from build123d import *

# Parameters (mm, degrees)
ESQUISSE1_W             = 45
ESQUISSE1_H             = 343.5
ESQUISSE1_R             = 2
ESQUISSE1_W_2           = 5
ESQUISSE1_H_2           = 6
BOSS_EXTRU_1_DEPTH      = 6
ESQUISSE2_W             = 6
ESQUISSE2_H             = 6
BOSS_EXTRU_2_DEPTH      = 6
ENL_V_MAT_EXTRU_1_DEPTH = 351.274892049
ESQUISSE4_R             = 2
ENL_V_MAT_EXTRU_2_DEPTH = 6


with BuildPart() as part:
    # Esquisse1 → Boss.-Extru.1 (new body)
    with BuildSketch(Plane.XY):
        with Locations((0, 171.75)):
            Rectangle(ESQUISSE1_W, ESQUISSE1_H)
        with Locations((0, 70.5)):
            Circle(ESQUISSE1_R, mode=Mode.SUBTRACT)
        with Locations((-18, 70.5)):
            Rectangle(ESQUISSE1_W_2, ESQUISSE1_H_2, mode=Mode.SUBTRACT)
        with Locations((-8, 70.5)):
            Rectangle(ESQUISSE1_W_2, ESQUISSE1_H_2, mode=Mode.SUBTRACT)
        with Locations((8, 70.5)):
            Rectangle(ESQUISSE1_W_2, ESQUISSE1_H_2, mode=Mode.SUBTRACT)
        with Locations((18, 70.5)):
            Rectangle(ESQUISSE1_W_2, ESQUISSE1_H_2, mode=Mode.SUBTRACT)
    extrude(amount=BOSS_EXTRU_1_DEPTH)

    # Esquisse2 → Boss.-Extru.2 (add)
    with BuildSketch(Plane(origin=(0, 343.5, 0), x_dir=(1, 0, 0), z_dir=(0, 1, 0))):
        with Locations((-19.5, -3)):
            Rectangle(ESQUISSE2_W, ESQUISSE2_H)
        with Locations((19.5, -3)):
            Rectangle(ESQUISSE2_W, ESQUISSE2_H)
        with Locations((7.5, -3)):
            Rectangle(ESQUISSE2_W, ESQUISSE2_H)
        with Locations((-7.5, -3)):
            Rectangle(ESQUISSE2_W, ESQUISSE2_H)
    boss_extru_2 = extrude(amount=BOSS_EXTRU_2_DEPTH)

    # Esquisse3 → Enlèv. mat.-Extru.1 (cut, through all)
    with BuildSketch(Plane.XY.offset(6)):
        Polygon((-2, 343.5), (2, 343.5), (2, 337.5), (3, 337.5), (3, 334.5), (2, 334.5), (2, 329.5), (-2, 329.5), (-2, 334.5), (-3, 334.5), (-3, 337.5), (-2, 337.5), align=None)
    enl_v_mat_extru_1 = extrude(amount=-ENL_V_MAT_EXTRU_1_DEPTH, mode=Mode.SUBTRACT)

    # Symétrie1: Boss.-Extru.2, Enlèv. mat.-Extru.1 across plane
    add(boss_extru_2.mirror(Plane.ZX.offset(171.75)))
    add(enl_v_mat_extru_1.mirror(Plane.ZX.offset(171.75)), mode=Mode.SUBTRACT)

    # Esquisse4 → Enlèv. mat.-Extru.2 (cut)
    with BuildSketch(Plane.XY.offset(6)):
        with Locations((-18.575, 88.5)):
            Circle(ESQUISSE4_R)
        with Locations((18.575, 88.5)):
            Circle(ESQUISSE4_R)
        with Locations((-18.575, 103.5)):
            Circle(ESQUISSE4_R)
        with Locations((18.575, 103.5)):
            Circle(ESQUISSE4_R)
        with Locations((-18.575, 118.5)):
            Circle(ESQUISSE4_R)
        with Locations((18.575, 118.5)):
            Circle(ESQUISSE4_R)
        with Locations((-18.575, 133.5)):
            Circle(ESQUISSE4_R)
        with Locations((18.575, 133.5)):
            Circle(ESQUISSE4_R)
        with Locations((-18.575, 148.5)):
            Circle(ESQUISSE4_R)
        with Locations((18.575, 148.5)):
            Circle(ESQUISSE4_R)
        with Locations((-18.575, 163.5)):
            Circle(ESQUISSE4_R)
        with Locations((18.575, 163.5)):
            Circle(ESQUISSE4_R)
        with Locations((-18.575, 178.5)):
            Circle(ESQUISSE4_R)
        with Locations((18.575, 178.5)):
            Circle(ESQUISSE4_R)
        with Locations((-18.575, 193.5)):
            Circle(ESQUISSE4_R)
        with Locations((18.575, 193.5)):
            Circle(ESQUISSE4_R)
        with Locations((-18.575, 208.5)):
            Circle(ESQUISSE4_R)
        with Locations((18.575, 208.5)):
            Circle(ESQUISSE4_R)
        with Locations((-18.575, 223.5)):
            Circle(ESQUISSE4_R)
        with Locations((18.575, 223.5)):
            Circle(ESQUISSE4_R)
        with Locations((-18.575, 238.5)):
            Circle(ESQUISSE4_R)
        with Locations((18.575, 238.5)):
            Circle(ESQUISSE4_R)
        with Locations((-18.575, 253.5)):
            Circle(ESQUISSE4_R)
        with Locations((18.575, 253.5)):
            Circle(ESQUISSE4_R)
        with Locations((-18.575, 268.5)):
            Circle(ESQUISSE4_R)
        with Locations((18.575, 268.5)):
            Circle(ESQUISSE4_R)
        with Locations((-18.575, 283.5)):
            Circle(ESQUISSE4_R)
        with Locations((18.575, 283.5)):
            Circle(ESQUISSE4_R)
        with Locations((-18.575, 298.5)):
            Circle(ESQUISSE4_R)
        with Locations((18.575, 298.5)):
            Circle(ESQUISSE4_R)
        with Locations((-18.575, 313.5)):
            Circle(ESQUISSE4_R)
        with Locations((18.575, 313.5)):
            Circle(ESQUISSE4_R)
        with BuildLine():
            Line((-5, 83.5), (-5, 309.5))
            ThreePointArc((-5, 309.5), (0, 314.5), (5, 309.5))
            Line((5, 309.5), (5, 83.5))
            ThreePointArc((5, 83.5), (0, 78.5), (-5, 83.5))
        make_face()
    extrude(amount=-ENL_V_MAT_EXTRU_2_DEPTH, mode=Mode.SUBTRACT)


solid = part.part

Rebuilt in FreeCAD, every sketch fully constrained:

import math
import FreeCAD as App
import Part
import Sketcher
Q = App.Units.Quantity


def add_polygon(sketch, points):
    """Adds a closed chain of lines whose ends are joined by coincident constraints."""
    first, n = sketch.GeometryCount, len(points)
    for a, b in zip(points, points[1:] + points[:1]):
        sketch.addGeometry(Part.LineSegment(App.Vector(*a, 0), App.Vector(*b, 0)), False)
    for i in range(n):
        sketch.addConstraint(Sketcher.Constraint("Coincident", first + i, 2, first + (i + 1) % n, 1))

doc = App.newDocument("Part")
params = doc.addObject("Spreadsheet::Sheet", "Params")
for row, (alias, value) in enumerate([
    ("sketch1_diameter", "4 mm"),
    ("sketch1_width", "45 mm"),
    ("sketch1_width2", "5 mm"),
    ("sketch1_height", "6 mm"),
    ("sketch1_height2", "343.5 mm"),
    ("pad1_length", "6 mm"),
    ("sketch2_width", "6 mm"),
    ("pad2_length", "6 mm"),
    ("sketch3_width", "4 mm"),
    ("sketch3_width2", "1 mm"),
    ("sketch3_height", "6 mm"),
    ("sketch3_height2", "3 mm"),
    ("sketch3_height3", "5 mm"),
    ("sketch4_diameter", "4 mm"),
    ("sketch4_radius", "5 mm"),
    ("sketch4_height", "226 mm"),
    ("pocket2_length", "6 mm"),
], start=1):
    params.set(f"A{row}", alias)
    params.set(f"B{row}", "=" + value)
    params.setAlias(f"B{row}", alias)

body = doc.addObject("PartDesign::Body", "Body")

# Sketch on XY plane
sketch1 = body.newObject("Sketcher::SketchObject", "Sketch")
sketch1.AttachmentSupport = (doc.getObject("XY_Plane"), [""])
sketch1.MapMode = "FlatFace"
add_polygon(sketch1, [(-22.5, 343.5), (-22.5, 0), (22.5, 0), (22.5, 343.5)])  # lines 0-3
add_polygon(sketch1, [(-15.5, 67.5), (-20.5, 67.5), (-20.5, 73.5), (-15.5, 73.5)])  # lines 4-7
add_polygon(sketch1, [(-5.5, 67.5), (-10.5, 67.5), (-10.5, 73.5), (-5.5, 73.5)])  # lines 8-11
sketch1.addGeometry(Part.Circle(App.Vector(0, 70.5, 0), App.Vector(0, 0, 1), 2), False)  # 12
add_polygon(sketch1, [(10.5, 67.5), (5.5, 67.5), (5.5, 73.5), (10.5, 73.5)])  # lines 13-16
add_polygon(sketch1, [(20.5, 67.5), (15.5, 67.5), (15.5, 73.5), (20.5, 73.5)])  # lines 17-20
sketch1.addConstraint([
    Sketcher.Constraint("Vertical", 0),
    Sketcher.Constraint("Horizontal", 1),
    Sketcher.Constraint("Vertical", 2),
    Sketcher.Constraint("Horizontal", 3),
    Sketcher.Constraint("Horizontal", 4),
    Sketcher.Constraint("Vertical", 5),
    Sketcher.Constraint("Horizontal", 6),
    Sketcher.Constraint("Vertical", 7),
    Sketcher.Constraint("Horizontal", 8),
    Sketcher.Constraint("Vertical", 9),
    Sketcher.Constraint("Horizontal", 10),
    Sketcher.Constraint("Vertical", 11),
    Sketcher.Constraint("Horizontal", 13),
    Sketcher.Constraint("Vertical", 14),
    Sketcher.Constraint("Horizontal", 15),
    Sketcher.Constraint("Vertical", 16),
    Sketcher.Constraint("Horizontal", 17),
    Sketcher.Constraint("Vertical", 18),
    Sketcher.Constraint("Horizontal", 19),
    Sketcher.Constraint("Vertical", 20),
    Sketcher.Constraint("Symmetric", 0, 2, 1, 2, -1, 1),
    Sketcher.Constraint("Symmetric", 11, 2, 13, 2, -2),
    Sketcher.Constraint("Symmetric", 9, 2, 15, 2, -2),
    Sketcher.Constraint("Symmetric", 7, 2, 17, 2, -2),
    Sketcher.Constraint("Symmetric", 5, 2, 19, 2, -2),
    Sketcher.Constraint("PointOnObject", 12, 3, -2),
    Sketcher.Constraint("Horizontal", 7, 2, 8, 2),
    Sketcher.Constraint("Horizontal", 6, 2, 9, 2),
    Sketcher.Constraint("Equal", 6, 8),
    Sketcher.Constraint("Diameter", 12, Q("4 mm")),
    Sketcher.Constraint("DistanceX", 1, 1, 1, 2, Q("45 mm")),
    Sketcher.Constraint("DistanceX", 4, 2, 4, 1, Q("5 mm")),
    Sketcher.Constraint("DistanceY", 5, 1, 5, 2, Q("6 mm")),
    Sketcher.Constraint("DistanceY", 0, 2, 0, 1, Q("343.5 mm")),
    Sketcher.Constraint("DistanceY", 12, 3, 2, 2, Q("273 mm")),
    Sketcher.Constraint("DistanceY", 4, 2, 12, 3, Q("3 mm")),
    Sketcher.Constraint("DistanceX", 0, 2, 4, 2, Q("2 mm")),
    Sketcher.Constraint("DistanceX", 7, 2, 8, 2, Q("5 mm")),
])
sketch1.setExpression("Constraints[49]", "Params.sketch1_diameter")
sketch1.setExpression("Constraints[50]", "Params.sketch1_width")
sketch1.setExpression("Constraints[51]", "Params.sketch1_width2")
sketch1.setExpression("Constraints[52]", "Params.sketch1_height")
sketch1.setExpression("Constraints[53]", "Params.sketch1_height2")
pad1 = body.newObject("PartDesign::Pad", "Pad")
pad1.Profile = sketch1
pad1.setExpression("Length", "Params.pad1_length")

# Sketch on XZ plane
sketch2 = body.newObject("Sketcher::SketchObject", "Sketch001")
sketch2.AttachmentSupport = (doc.getObject("XZ_Plane"), [""])
sketch2.MapMode = "FlatFace"
sketch2.AttachmentOffset = App.Placement(App.Vector(0, 0, -343.5), App.Rotation())
add_polygon(sketch2, [(-22, 0), (-22, 6), (-16, 6), (-16, 0)])  # lines 0-3
add_polygon(sketch2, [(16, 0), (16, 6), (22, 6), (22, 0)])  # lines 4-7
add_polygon(sketch2, [(4, 0), (4, 6), (10, 6), (10, 0)])  # lines 8-11
add_polygon(sketch2, [(-10, 0), (-10, 6), (-4, 6), (-4, 0)])  # lines 12-15
sketch2.addConstraint([
    Sketcher.Constraint("Vertical", 0),
    Sketcher.Constraint("Horizontal", 1),
    Sketcher.Constraint("Vertical", 2),
    Sketcher.Constraint("Horizontal", 3),
    Sketcher.Constraint("Vertical", 4),
    Sketcher.Constraint("Horizontal", 5),
    Sketcher.Constraint("Vertical", 6),
    Sketcher.Constraint("Horizontal", 7),
    Sketcher.Constraint("Vertical", 8),
    Sketcher.Constraint("Horizontal", 9),
    Sketcher.Constraint("Vertical", 10),
    Sketcher.Constraint("Horizontal", 11),
    Sketcher.Constraint("Vertical", 12),
    Sketcher.Constraint("Horizontal", 13),
    Sketcher.Constraint("Vertical", 14),
    Sketcher.Constraint("Horizontal", 15),
    Sketcher.Constraint("Symmetric", 3, 2, 6, 2, -1, 1),
    Sketcher.Constraint("Symmetric", 11, 2, 14, 2, -1, 1),
    Sketcher.Constraint("Symmetric", 1, 2, 4, 2, -2),
    Sketcher.Constraint("Symmetric", 9, 2, 12, 2, -2),
    Sketcher.Constraint("PointOnObject", 2, 2, -1),
    Sketcher.Constraint("PointOnObject", 10, 2, -1),
    Sketcher.Constraint("Horizontal", 5, 2, 8, 2),
    Sketcher.Constraint("Equal", 7, 9),
    Sketcher.Constraint("Equal", 15, 0),
    Sketcher.Constraint("DistanceX", 1, 1, 1, 2, Q("6 mm")),
    Sketcher.Constraint("DistanceX", 1, 2, 4, 2, Q("33 mm")),
    Sketcher.Constraint("DistanceX", 8, 2, 4, 2, Q("12 mm")),
])
sketch2.setExpression("Constraints[41]", "Params.sketch2_width")
pad2 = body.newObject("PartDesign::Pad", "Pad001")
pad2.Profile = sketch2
pad2.setExpression("Length", "Params.pad2_length")
pad2.Reversed = True

# Sketch on XY plane
sketch3 = body.newObject("Sketcher::SketchObject", "Sketch002")
sketch3.AttachmentSupport = (doc.getObject("XY_Plane"), [""])
sketch3.MapMode = "FlatFace"
sketch3.AttachmentOffset = App.Placement(App.Vector(0, 0, 6), App.Rotation())
add_polygon(sketch3, [(2, 343.5), (-2, 343.5), (-2, 337.5), (-3, 337.5), (-3, 334.5), (-2, 334.5), (-2, 329.5), (2, 329.5), (2, 334.5), (3, 334.5), (3, 337.5), (2, 337.5)])  # lines 0-11
sketch3.addConstraint([
    Sketcher.Constraint("Horizontal", 0),
    Sketcher.Constraint("Vertical", 1),
    Sketcher.Constraint("Horizontal", 2),
    Sketcher.Constraint("Vertical", 3),
    Sketcher.Constraint("Horizontal", 4),
    Sketcher.Constraint("Vertical", 5),
    Sketcher.Constraint("Horizontal", 6),
    Sketcher.Constraint("Vertical", 7),
    Sketcher.Constraint("Horizontal", 8),
    Sketcher.Constraint("Vertical", 9),
    Sketcher.Constraint("Horizontal", 10),
    Sketcher.Constraint("Vertical", 11),
    Sketcher.Constraint("Symmetric", 4, 2, 7, 2, -2),
    Sketcher.Constraint("Symmetric", 2, 2, 9, 2, -2),
    Sketcher.Constraint("Vertical", 1, 2, 4, 2),
    Sketcher.Constraint("Vertical", 7, 2, 10, 2),
    Sketcher.Constraint("DistanceX", 0, 2, 0, 1, Q("4 mm")),
    Sketcher.Constraint("DistanceX", 2, 2, 2, 1, Q("1 mm")),
    Sketcher.Constraint("DistanceY", 1, 2, 1, 1, Q("6 mm")),
    Sketcher.Constraint("DistanceY", 3, 2, 3, 1, Q("3 mm")),
    Sketcher.Constraint("DistanceY", 5, 2, 5, 1, Q("5 mm")),
    Sketcher.Constraint("DistanceY", -1, 1, 0, 2, Q("343.5 mm")),
])
sketch3.setExpression("Constraints[28]", "Params.sketch3_width")
sketch3.setExpression("Constraints[29]", "Params.sketch3_width2")
sketch3.setExpression("Constraints[30]", "Params.sketch3_height")
sketch3.setExpression("Constraints[31]", "Params.sketch3_height2")
sketch3.setExpression("Constraints[32]", "Params.sketch3_height3")
pocket1 = body.newObject("PartDesign::Pocket", "Pocket")
pocket1.Profile = sketch3
pocket1.Type = "ThroughAll"
doc.recompute()

datumplane = body.newObject("PartDesign::Plane", "DatumPlane")
datumplane.AttachmentSupport = (doc.getObject("XZ_Plane"), [""])
datumplane.MapMode = "FlatFace"
datumplane.AttachmentOffset = App.Placement(App.Vector(0, 0, -171.75), App.Rotation())
mirrored = body.newObject("PartDesign::Mirrored", "Mirrored")
mirrored.Originals = [pad2, pocket1]
mirrored.MirrorPlane = (datumplane, [""])
body.Tip = mirrored

# Sketch on XY plane
sketch4 = body.newObject("Sketcher::SketchObject", "Sketch003")
sketch4.AttachmentSupport = (doc.getObject("XY_Plane"), [""])
sketch4.MapMode = "FlatFace"
sketch4.AttachmentOffset = App.Placement(App.Vector(0, 0, 6), App.Rotation())
sketch4.addGeometry([
    Part.Circle(App.Vector(-18.6, 88.5, 0), App.Vector(0, 0, 1), 2),  # 0
    Part.Circle(App.Vector(18.6, 88.5, 0), App.Vector(0, 0, 1), 2),  # 1
    Part.Circle(App.Vector(-18.6, 103.5, 0), App.Vector(0, 0, 1), 2),  # 2
    Part.Circle(App.Vector(18.6, 103.5, 0), App.Vector(0, 0, 1), 2),  # 3
    Part.Circle(App.Vector(-18.6, 118.5, 0), App.Vector(0, 0, 1), 2),  # 4
    Part.Circle(App.Vector(18.6, 118.5, 0), App.Vector(0, 0, 1), 2),  # 5
    Part.Circle(App.Vector(-18.6, 133.5, 0), App.Vector(0, 0, 1), 2),  # 6
    Part.Circle(App.Vector(18.6, 133.5, 0), App.Vector(0, 0, 1), 2),  # 7
    Part.Circle(App.Vector(-18.6, 148.5, 0), App.Vector(0, 0, 1), 2),  # 8
    Part.Circle(App.Vector(18.6, 148.5, 0), App.Vector(0, 0, 1), 2),  # 9
    Part.Circle(App.Vector(-18.6, 163.5, 0), App.Vector(0, 0, 1), 2),  # 10
    Part.Circle(App.Vector(18.6, 163.5, 0), App.Vector(0, 0, 1), 2),  # 11
    Part.Circle(App.Vector(-18.6, 178.5, 0), App.Vector(0, 0, 1), 2),  # 12
    Part.Circle(App.Vector(18.6, 178.5, 0), App.Vector(0, 0, 1), 2),  # 13
    Part.Circle(App.Vector(-18.6, 193.5, 0), App.Vector(0, 0, 1), 2),  # 14
    Part.Circle(App.Vector(18.6, 193.5, 0), App.Vector(0, 0, 1), 2),  # 15
    Part.Circle(App.Vector(-18.6, 208.5, 0), App.Vector(0, 0, 1), 2),  # 16
    Part.Circle(App.Vector(18.6, 208.5, 0), App.Vector(0, 0, 1), 2),  # 17
    Part.Circle(App.Vector(-18.6, 223.5, 0), App.Vector(0, 0, 1), 2),  # 18
    Part.Circle(App.Vector(18.6, 223.5, 0), App.Vector(0, 0, 1), 2),  # 19
    Part.Circle(App.Vector(-18.6, 238.5, 0), App.Vector(0, 0, 1), 2),  # 20
    Part.Circle(App.Vector(18.6, 238.5, 0), App.Vector(0, 0, 1), 2),  # 21
    Part.Circle(App.Vector(-18.6, 253.5, 0), App.Vector(0, 0, 1), 2),  # 22
    Part.Circle(App.Vector(18.6, 253.5, 0), App.Vector(0, 0, 1), 2),  # 23
    Part.Circle(App.Vector(-18.6, 268.5, 0), App.Vector(0, 0, 1), 2),  # 24
    Part.Circle(App.Vector(18.6, 268.5, 0), App.Vector(0, 0, 1), 2),  # 25
    Part.Circle(App.Vector(-18.6, 283.5, 0), App.Vector(0, 0, 1), 2),  # 26
    Part.Circle(App.Vector(18.6, 283.5, 0), App.Vector(0, 0, 1), 2),  # 27
    Part.Circle(App.Vector(-18.6, 298.5, 0), App.Vector(0, 0, 1), 2),  # 28
    Part.Circle(App.Vector(18.6, 298.5, 0), App.Vector(0, 0, 1), 2),  # 29
    Part.Circle(App.Vector(-18.6, 313.5, 0), App.Vector(0, 0, 1), 2),  # 30
    Part.Circle(App.Vector(18.6, 313.5, 0), App.Vector(0, 0, 1), 2),  # 31
    Part.LineSegment(App.Vector(-5, 309.5, 0), App.Vector(-5, 83.5, 0)),  # 32
    Part.ArcOfCircle(Part.Circle(App.Vector(0, 83.5, 0), App.Vector(0, 0, 1), 5), math.radians(180), math.radians(360)),  # 33
    Part.LineSegment(App.Vector(5, 83.5, 0), App.Vector(5, 309.5, 0)),  # 34
    Part.ArcOfCircle(Part.Circle(App.Vector(0, 309.5, 0), App.Vector(0, 0, 1), 5), math.radians(0), math.radians(180)),  # 35
], False)
sketch4.addConstraint([
    Sketcher.Constraint("Tangent", 32, 2, 33, 1),
    Sketcher.Constraint("Tangent", 33, 2, 34, 1),
    Sketcher.Constraint("Tangent", 34, 2, 35, 1),
    Sketcher.Constraint("Tangent", 35, 2, 32, 1),
    Sketcher.Constraint("Vertical", 32),
    Sketcher.Constraint("Vertical", 34),
    Sketcher.Constraint("Equal", 0, 1),
    Sketcher.Constraint("Equal", 1, 2),
    Sketcher.Constraint("Equal", 2, 3),
    Sketcher.Constraint("Equal", 3, 4),
    Sketcher.Constraint("Equal", 4, 5),
    Sketcher.Constraint("Equal", 5, 6),
    Sketcher.Constraint("Equal", 6, 7),
    Sketcher.Constraint("Equal", 7, 8),
    Sketcher.Constraint("Equal", 8, 9),
    Sketcher.Constraint("Equal", 9, 10),
    Sketcher.Constraint("Equal", 10, 11),
    Sketcher.Constraint("Equal", 11, 12),
    Sketcher.Constraint("Equal", 12, 13),
    Sketcher.Constraint("Equal", 13, 14),
    Sketcher.Constraint("Equal", 14, 15),
    Sketcher.Constraint("Equal", 15, 16),
    Sketcher.Constraint("Equal", 16, 17),
    Sketcher.Constraint("Equal", 17, 18),
    Sketcher.Constraint("Equal", 18, 19),
    Sketcher.Constraint("Equal", 19, 20),
    Sketcher.Constraint("Equal", 20, 21),
    Sketcher.Constraint("Equal", 21, 22),
    Sketcher.Constraint("Equal", 22, 23),
    Sketcher.Constraint("Equal", 23, 24),
    Sketcher.Constraint("Equal", 24, 25),
    Sketcher.Constraint("Equal", 25, 26),
    Sketcher.Constraint("Equal", 26, 27),
    Sketcher.Constraint("Equal", 27, 28),
    Sketcher.Constraint("Equal", 28, 29),
    Sketcher.Constraint("Equal", 29, 30),
    Sketcher.Constraint("Equal", 30, 31),
    Sketcher.Constraint("Symmetric", 0, 3, 1, 3, -2),
    Sketcher.Constraint("Symmetric", 2, 3, 3, 3, -2),
    Sketcher.Constraint("Symmetric", 4, 3, 5, 3, -2),
    Sketcher.Constraint("Symmetric", 6, 3, 7, 3, -2),
    Sketcher.Constraint("Symmetric", 8, 3, 9, 3, -2),
    Sketcher.Constraint("Symmetric", 10, 3, 11, 3, -2),
    Sketcher.Constraint("Symmetric", 12, 3, 13, 3, -2),
    Sketcher.Constraint("Symmetric", 14, 3, 15, 3, -2),
    Sketcher.Constraint("Symmetric", 16, 3, 17, 3, -2),
    Sketcher.Constraint("Symmetric", 18, 3, 19, 3, -2),
    Sketcher.Constraint("Symmetric", 20, 3, 21, 3, -2),
    Sketcher.Constraint("Symmetric", 22, 3, 23, 3, -2),
    Sketcher.Constraint("Symmetric", 24, 3, 25, 3, -2),
    Sketcher.Constraint("Symmetric", 26, 3, 27, 3, -2),
    Sketcher.Constraint("Symmetric", 28, 3, 29, 3, -2),
    Sketcher.Constraint("Symmetric", 30, 3, 31, 3, -2),
    Sketcher.Constraint("PointOnObject", 33, 3, -2),
    Sketcher.Constraint("Vertical", 0, 3, 2, 3),
    Sketcher.Constraint("Vertical", 2, 3, 4, 3),
    Sketcher.Constraint("Vertical", 4, 3, 6, 3),
    Sketcher.Constraint("Vertical", 6, 3, 8, 3),
    Sketcher.Constraint("Vertical", 8, 3, 10, 3),
    Sketcher.Constraint("Vertical", 10, 3, 12, 3),
    Sketcher.Constraint("Vertical", 12, 3, 14, 3),
    Sketcher.Constraint("Vertical", 14, 3, 16, 3),
    Sketcher.Constraint("Vertical", 16, 3, 18, 3),
    Sketcher.Constraint("Vertical", 18, 3, 20, 3),
    Sketcher.Constraint("Vertical", 20, 3, 22, 3),
    Sketcher.Constraint("Vertical", 22, 3, 24, 3),
    Sketcher.Constraint("Vertical", 24, 3, 26, 3),
    Sketcher.Constraint("Vertical", 26, 3, 28, 3),
    Sketcher.Constraint("Vertical", 28, 3, 30, 3),
    Sketcher.Constraint("Diameter", 0, Q("4 mm")),
    Sketcher.Constraint("Radius", 33, Q("5 mm")),
    Sketcher.Constraint("DistanceY", 32, 2, 32, 1, Q("226 mm")),
    Sketcher.Constraint("DistanceY", 0, 3, 2, 3, Q("15 mm")),
    Sketcher.Constraint("DistanceY", 2, 3, 4, 3, Q("15 mm")),
    Sketcher.Constraint("DistanceY", 4, 3, 6, 3, Q("15 mm")),
    Sketcher.Constraint("DistanceY", 6, 3, 8, 3, Q("15 mm")),
    Sketcher.Constraint("DistanceY", 8, 3, 10, 3, Q("15 mm")),
    Sketcher.Constraint("DistanceY", 10, 3, 12, 3, Q("15 mm")),
    Sketcher.Constraint("DistanceY", 12, 3, 14, 3, Q("15 mm")),
    Sketcher.Constraint("DistanceY", 14, 3, 16, 3, Q("15 mm")),
    Sketcher.Constraint("DistanceY", 16, 3, 18, 3, Q("15 mm")),
    Sketcher.Constraint("DistanceY", 18, 3, 20, 3, Q("15 mm")),
    Sketcher.Constraint("DistanceY", 20, 3, 22, 3, Q("15 mm")),
    Sketcher.Constraint("DistanceY", 22, 3, 24, 3, Q("15 mm")),
    Sketcher.Constraint("DistanceY", 24, 3, 26, 3, Q("15 mm")),
    Sketcher.Constraint("DistanceY", 26, 3, 28, 3, Q("15 mm")),
    Sketcher.Constraint("DistanceY", 28, 3, 30, 3, Q("15 mm")),
    Sketcher.Constraint("DistanceY", 33, 3, 0, 3, Q("5 mm")),
    Sketcher.Constraint("DistanceY", -1, 1, 0, 3, Q("88.5 mm")),
    Sketcher.Constraint("DistanceX", 0, 3, 1, 3, Q("37.15 mm")),
])
sketch4.setExpression("Constraints[69]", "Params.sketch4_diameter")
sketch4.setExpression("Constraints[70]", "Params.sketch4_radius")
sketch4.setExpression("Constraints[71]", "Params.sketch4_height")
pocket2 = body.newObject("PartDesign::Pocket", "Pocket001")
pocket2.Profile = sketch4
pocket2.setExpression("Length", "Params.pocket2_length")

doc.recompute()
